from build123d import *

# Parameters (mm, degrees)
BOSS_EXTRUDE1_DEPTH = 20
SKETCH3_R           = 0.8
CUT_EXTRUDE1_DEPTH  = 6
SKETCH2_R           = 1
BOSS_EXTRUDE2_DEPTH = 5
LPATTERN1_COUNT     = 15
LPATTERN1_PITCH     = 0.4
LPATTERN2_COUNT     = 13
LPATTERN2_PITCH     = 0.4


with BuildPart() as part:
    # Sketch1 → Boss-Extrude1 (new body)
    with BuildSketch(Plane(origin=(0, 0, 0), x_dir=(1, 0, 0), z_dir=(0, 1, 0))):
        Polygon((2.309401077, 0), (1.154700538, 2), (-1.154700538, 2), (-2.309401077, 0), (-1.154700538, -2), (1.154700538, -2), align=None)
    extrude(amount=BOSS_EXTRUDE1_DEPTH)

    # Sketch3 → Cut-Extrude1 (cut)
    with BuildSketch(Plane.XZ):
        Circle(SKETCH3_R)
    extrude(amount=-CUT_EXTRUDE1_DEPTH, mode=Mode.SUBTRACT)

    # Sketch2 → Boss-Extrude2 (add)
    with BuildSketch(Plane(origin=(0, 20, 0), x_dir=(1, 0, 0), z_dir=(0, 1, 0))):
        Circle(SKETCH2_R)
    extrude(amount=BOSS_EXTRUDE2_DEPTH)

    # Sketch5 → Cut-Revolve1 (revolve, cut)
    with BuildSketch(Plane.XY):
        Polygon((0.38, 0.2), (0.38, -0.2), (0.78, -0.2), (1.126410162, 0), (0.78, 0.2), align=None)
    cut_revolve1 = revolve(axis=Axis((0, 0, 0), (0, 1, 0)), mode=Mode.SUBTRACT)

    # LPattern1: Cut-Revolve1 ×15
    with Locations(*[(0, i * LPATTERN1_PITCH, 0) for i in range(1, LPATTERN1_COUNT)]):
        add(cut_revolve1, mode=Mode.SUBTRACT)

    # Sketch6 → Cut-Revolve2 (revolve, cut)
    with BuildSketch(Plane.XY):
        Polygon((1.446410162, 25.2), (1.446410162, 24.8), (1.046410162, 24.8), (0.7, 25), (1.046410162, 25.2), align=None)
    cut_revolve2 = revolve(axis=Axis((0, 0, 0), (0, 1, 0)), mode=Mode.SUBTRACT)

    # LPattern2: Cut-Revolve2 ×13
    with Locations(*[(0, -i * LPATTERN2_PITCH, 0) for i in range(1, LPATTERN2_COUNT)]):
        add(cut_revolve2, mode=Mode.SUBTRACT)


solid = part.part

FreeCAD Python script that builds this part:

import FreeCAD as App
import Part
import Sketcher
Q = App.Units.Quantity

doc = App.newDocument("Part")
body = doc.addObject("PartDesign::Body", "Body")

# Sketch on XZ plane
sketch1 = body.newObject("Sketcher::SketchObject", "Sketch")
sketch1.AttachmentSupport = (doc.getObject("XZ_Plane"), [""])
sketch1.MapMode = "FlatFace"
sketch1.addGeometry([
    Part.LineSegment(App.Vector(2.3, 0, 0), App.Vector(1.2, -2, 0)),  # 0
    Part.LineSegment(App.Vector(1.2, -2, 0), App.Vector(-1.2, -2, 0)),  # 1
    Part.LineSegment(App.Vector(-1.2, -2, 0), App.Vector(-2.3, 0, 0)),  # 2
    Part.LineSegment(App.Vector(-2.3, 0, 0), App.Vector(-1.2, 2, 0)),  # 3
    Part.LineSegment(App.Vector(-1.2, 2, 0), App.Vector(1.2, 2, 0)),  # 4
    Part.LineSegment(App.Vector(1.2, 2, 0), App.Vector(2.3, 0, 0)),  # 5
], False)
sketch1.addConstraint([
    Sketcher.Constraint("Coincident", 0, 2, 1, 1),
    Sketcher.Constraint("Coincident", 1, 2, 2, 1),
    Sketcher.Constraint("Coincident", 2, 2, 3, 1),
    Sketcher.Constraint("Coincident", 3, 2, 4, 1),
    Sketcher.Constraint("Coincident", 4, 2, 5, 1),
    Sketcher.Constraint("Coincident", 5, 2, 0, 1),
    Sketcher.Constraint("Horizontal", 1),
    Sketcher.Constraint("Horizontal", 4),
    Sketcher.Constraint("Symmetric", 0, 2, 3, 2, -1, 1),
    Sketcher.Constraint("Symmetric", 2, 2, 5, 2, -1, 1),
    Sketcher.Constraint("PointOnObject", 2, 2, -1),
    Sketcher.Constraint("Parallel", 2, 5),
    Sketcher.Constraint("Vertical", 1, 2, 3, 2),
    Sketcher.Constraint("Angle", 0, Q("-120 deg")),
    Sketcher.Constraint("DistanceY", 0, 2, -1, 1, 2.0),
    Sketcher.Constraint("DistanceX", 1, 2, 1, 1, 2.309401),
])
pad1 = body.newObject("PartDesign::Pad", "Pad")
pad1.Profile = sketch1
pad1.Length = 20
pad1.Reversed = True

# Sketch on XZ plane
sketch2 = body.newObject("Sketcher::SketchObject", "Sketch001")
sketch2.AttachmentSupport = (doc.getObject("XZ_Plane"), [""])
sketch2.MapMode = "FlatFace"
sketch2.addGeometry(Part.Circle(App.Vector(0, 0, 0), App.Vector(0, 0, 1), 0.8), False)
sketch2.addConstraint([
    Sketcher.Constraint("Coincident", 0, 3, -1, 1),
    Sketcher.Constraint("Diameter", 0, 1.6),
])
pocket1 = body.newObject("PartDesign::Pocket", "Pocket")
pocket1.Profile = sketch2
pocket1.Length = 6

# Sketch on XZ plane
sketch3 = body.newObject("Sketcher::SketchObject", "Sketch002")
sketch3.AttachmentSupport = (doc.getObject("XZ_Plane"), [""])
sketch3.MapMode = "FlatFace"
sketch3.AttachmentOffset = App.Placement(App.Vector(0, 0, -20), App.Rotation())
sketch3.addGeometry(Part.Circle(App.Vector(0, 0, 0), App.Vector(0, 0, 1), 1), False)
sketch3.addConstraint([
    Sketcher.Constraint("Coincident", 0, 3, -1, 1),
    Sketcher.Constraint("Diameter", 0, 2.0),
])
pad2 = body.newObject("PartDesign::Pad", "Pad001")
pad2.Profile = sketch3
pad2.Length = 5
pad2.Reversed = True

# Sketch on XY plane
sketch4 = body.newObject("Sketcher::SketchObject", "Sketch003")
sketch4.AttachmentSupport = (doc.getObject("XY_Plane"), [""])
sketch4.MapMode = "FlatFace"
sketch4.addGeometry([
    Part.LineSegment(App.Vector(0.38, 0.2, 0), App.Vector(0.38, -0.2, 0)),  # 0
    Part.LineSegment(App.Vector(0.38, -0.2, 0), App.Vector(0.78, -0.2, 0)),  # 1
    Part.LineSegment(App.Vector(0.78, -0.2, 0), App.Vector(1.13, 0, 0)),  # 2
    Part.LineSegment(App.Vector(1.13, 0, 0), App.Vector(0.78, 0.2, 0)),  # 3
    Part.LineSegment(App.Vector(0.78, 0.2, 0), App.Vector(0.38, 0.2, 0)),  # 4
], False)
sketch4.addConstraint([
    Sketcher.Constraint("Coincident", 0, 2, 1, 1),
    Sketcher.Constraint("Coincident", 1, 2, 2, 1),
    Sketcher.Constraint("Coincident", 2, 2, 3, 1),
    Sketcher.Constraint("Coincident", 3, 2, 4, 1),
    Sketcher.Constraint("Coincident", 4, 2, 0, 1),
    Sketcher.Constraint("Vertical", 0),
    Sketcher.Constraint("Horizontal", 1),
    Sketcher.Constraint("Horizontal", 4),
    Sketcher.Constraint("Symmetric", 1, 2, 3, 2, -1),
    Sketcher.Constraint("PointOnObject", 2, 2, -1),
    Sketcher.Constraint("Equal", 4, 0),
    Sketcher.Constraint("Angle", 2, Q("30 deg")),
    Sketcher.Constraint("DistanceX", 1, 1, 1, 2, 0.4),
    Sketcher.Constraint("DistanceX", -1, 1, 0, 2, 0.38),
])
groove = body.newObject("PartDesign::Groove", "Groove")
groove.Profile = sketch4
groove.ReferenceAxis = (sketch4, ["V_Axis"])
groove.Angle = 360
doc.recompute()

linearpattern = body.newObject("PartDesign::LinearPattern", "LinearPattern")
linearpattern.Originals = [groove]
linearpattern.Direction = (doc.getObject("Y_Axis"), [""])
linearpattern.Mode = "offset"
linearpattern.Offset = 0.4
linearpattern.Occurrences = 15
body.Tip = linearpattern

# Sketch on XY plane
sketch5 = body.newObject("Sketcher::SketchObject", "Sketch004")
sketch5.AttachmentSupport = (doc.getObject("XY_Plane"), [""])
sketch5.MapMode = "FlatFace"
sketch5.addGeometry([
    Part.LineSegment(App.Vector(1.45, 24.8, 0), App.Vector(1.45, 25.2, 0)),  # 0
    Part.LineSegment(App.Vector(1.45, 25.2, 0), App.Vector(1.05, 25.2, 0)),  # 1
    Part.LineSegment(App.Vector(1.05, 25.2, 0), App.Vector(0.7, 25, 0)),  # 2
    Part.LineSegment(App.Vector(0.7, 25, 0), App.Vector(1.05, 24.8, 0)),  # 3
    Part.LineSegment(App.Vector(1.05, 24.8, 0), App.Vector(1.45, 24.8, 0)),  # 4
], False)
sketch5.addConstraint([
    Sketcher.Constraint("Coincident", 0, 2, 1, 1),
    Sketcher.Constraint("Coincident", 1, 2, 2, 1),
    Sketcher.Constraint("Coincident", 2, 2, 3, 1),
    Sketcher.Constraint("Coincident", 3, 2, 4, 1),
    Sketcher.Constraint("Coincident", 4, 2, 0, 1),
    Sketcher.Constraint("Vertical", 0),
    Sketcher.Constraint("Horizontal", 1),
    Sketcher.Constraint("Horizontal", 4),
    Sketcher.Constraint("Vertical", 1, 2, 3, 2),
    Sketcher.Constraint("Equal", 4, 0),
    Sketcher.Constraint("Equal", 2, 3),
    Sketcher.Constraint("Angle", 2, Q("-150 deg")),
    Sketcher.Constraint("DistanceX", 1, 2, 1, 1, 0.4),
    Sketcher.Constraint("DistanceY", -1, 1, 2, 2, 25.0),
    Sketcher.Constraint("DistanceX", -1, 1, 2, 2, 0.7),
])
groove2 = body.newObject("PartDesign::Groove", "Groove001")
groove2.Profile = sketch5
groove2.ReferenceAxis = (sketch5, ["V_Axis"])
groove2.Angle = 360
doc.recompute()

linearpattern2 = body.newObject("PartDesign::LinearPattern", "LinearPattern001")
linearpattern2.Originals = [groove2]
linearpattern2.Direction = (doc.getObject("Y_Axis"), [""])
linearpattern2.Mode = "offset"
linearpattern2.Offset = 0.4
linearpattern2.Occurrences = 13
linearpattern2.Reversed = True
body.Tip = linearpattern2

doc.recompute()
